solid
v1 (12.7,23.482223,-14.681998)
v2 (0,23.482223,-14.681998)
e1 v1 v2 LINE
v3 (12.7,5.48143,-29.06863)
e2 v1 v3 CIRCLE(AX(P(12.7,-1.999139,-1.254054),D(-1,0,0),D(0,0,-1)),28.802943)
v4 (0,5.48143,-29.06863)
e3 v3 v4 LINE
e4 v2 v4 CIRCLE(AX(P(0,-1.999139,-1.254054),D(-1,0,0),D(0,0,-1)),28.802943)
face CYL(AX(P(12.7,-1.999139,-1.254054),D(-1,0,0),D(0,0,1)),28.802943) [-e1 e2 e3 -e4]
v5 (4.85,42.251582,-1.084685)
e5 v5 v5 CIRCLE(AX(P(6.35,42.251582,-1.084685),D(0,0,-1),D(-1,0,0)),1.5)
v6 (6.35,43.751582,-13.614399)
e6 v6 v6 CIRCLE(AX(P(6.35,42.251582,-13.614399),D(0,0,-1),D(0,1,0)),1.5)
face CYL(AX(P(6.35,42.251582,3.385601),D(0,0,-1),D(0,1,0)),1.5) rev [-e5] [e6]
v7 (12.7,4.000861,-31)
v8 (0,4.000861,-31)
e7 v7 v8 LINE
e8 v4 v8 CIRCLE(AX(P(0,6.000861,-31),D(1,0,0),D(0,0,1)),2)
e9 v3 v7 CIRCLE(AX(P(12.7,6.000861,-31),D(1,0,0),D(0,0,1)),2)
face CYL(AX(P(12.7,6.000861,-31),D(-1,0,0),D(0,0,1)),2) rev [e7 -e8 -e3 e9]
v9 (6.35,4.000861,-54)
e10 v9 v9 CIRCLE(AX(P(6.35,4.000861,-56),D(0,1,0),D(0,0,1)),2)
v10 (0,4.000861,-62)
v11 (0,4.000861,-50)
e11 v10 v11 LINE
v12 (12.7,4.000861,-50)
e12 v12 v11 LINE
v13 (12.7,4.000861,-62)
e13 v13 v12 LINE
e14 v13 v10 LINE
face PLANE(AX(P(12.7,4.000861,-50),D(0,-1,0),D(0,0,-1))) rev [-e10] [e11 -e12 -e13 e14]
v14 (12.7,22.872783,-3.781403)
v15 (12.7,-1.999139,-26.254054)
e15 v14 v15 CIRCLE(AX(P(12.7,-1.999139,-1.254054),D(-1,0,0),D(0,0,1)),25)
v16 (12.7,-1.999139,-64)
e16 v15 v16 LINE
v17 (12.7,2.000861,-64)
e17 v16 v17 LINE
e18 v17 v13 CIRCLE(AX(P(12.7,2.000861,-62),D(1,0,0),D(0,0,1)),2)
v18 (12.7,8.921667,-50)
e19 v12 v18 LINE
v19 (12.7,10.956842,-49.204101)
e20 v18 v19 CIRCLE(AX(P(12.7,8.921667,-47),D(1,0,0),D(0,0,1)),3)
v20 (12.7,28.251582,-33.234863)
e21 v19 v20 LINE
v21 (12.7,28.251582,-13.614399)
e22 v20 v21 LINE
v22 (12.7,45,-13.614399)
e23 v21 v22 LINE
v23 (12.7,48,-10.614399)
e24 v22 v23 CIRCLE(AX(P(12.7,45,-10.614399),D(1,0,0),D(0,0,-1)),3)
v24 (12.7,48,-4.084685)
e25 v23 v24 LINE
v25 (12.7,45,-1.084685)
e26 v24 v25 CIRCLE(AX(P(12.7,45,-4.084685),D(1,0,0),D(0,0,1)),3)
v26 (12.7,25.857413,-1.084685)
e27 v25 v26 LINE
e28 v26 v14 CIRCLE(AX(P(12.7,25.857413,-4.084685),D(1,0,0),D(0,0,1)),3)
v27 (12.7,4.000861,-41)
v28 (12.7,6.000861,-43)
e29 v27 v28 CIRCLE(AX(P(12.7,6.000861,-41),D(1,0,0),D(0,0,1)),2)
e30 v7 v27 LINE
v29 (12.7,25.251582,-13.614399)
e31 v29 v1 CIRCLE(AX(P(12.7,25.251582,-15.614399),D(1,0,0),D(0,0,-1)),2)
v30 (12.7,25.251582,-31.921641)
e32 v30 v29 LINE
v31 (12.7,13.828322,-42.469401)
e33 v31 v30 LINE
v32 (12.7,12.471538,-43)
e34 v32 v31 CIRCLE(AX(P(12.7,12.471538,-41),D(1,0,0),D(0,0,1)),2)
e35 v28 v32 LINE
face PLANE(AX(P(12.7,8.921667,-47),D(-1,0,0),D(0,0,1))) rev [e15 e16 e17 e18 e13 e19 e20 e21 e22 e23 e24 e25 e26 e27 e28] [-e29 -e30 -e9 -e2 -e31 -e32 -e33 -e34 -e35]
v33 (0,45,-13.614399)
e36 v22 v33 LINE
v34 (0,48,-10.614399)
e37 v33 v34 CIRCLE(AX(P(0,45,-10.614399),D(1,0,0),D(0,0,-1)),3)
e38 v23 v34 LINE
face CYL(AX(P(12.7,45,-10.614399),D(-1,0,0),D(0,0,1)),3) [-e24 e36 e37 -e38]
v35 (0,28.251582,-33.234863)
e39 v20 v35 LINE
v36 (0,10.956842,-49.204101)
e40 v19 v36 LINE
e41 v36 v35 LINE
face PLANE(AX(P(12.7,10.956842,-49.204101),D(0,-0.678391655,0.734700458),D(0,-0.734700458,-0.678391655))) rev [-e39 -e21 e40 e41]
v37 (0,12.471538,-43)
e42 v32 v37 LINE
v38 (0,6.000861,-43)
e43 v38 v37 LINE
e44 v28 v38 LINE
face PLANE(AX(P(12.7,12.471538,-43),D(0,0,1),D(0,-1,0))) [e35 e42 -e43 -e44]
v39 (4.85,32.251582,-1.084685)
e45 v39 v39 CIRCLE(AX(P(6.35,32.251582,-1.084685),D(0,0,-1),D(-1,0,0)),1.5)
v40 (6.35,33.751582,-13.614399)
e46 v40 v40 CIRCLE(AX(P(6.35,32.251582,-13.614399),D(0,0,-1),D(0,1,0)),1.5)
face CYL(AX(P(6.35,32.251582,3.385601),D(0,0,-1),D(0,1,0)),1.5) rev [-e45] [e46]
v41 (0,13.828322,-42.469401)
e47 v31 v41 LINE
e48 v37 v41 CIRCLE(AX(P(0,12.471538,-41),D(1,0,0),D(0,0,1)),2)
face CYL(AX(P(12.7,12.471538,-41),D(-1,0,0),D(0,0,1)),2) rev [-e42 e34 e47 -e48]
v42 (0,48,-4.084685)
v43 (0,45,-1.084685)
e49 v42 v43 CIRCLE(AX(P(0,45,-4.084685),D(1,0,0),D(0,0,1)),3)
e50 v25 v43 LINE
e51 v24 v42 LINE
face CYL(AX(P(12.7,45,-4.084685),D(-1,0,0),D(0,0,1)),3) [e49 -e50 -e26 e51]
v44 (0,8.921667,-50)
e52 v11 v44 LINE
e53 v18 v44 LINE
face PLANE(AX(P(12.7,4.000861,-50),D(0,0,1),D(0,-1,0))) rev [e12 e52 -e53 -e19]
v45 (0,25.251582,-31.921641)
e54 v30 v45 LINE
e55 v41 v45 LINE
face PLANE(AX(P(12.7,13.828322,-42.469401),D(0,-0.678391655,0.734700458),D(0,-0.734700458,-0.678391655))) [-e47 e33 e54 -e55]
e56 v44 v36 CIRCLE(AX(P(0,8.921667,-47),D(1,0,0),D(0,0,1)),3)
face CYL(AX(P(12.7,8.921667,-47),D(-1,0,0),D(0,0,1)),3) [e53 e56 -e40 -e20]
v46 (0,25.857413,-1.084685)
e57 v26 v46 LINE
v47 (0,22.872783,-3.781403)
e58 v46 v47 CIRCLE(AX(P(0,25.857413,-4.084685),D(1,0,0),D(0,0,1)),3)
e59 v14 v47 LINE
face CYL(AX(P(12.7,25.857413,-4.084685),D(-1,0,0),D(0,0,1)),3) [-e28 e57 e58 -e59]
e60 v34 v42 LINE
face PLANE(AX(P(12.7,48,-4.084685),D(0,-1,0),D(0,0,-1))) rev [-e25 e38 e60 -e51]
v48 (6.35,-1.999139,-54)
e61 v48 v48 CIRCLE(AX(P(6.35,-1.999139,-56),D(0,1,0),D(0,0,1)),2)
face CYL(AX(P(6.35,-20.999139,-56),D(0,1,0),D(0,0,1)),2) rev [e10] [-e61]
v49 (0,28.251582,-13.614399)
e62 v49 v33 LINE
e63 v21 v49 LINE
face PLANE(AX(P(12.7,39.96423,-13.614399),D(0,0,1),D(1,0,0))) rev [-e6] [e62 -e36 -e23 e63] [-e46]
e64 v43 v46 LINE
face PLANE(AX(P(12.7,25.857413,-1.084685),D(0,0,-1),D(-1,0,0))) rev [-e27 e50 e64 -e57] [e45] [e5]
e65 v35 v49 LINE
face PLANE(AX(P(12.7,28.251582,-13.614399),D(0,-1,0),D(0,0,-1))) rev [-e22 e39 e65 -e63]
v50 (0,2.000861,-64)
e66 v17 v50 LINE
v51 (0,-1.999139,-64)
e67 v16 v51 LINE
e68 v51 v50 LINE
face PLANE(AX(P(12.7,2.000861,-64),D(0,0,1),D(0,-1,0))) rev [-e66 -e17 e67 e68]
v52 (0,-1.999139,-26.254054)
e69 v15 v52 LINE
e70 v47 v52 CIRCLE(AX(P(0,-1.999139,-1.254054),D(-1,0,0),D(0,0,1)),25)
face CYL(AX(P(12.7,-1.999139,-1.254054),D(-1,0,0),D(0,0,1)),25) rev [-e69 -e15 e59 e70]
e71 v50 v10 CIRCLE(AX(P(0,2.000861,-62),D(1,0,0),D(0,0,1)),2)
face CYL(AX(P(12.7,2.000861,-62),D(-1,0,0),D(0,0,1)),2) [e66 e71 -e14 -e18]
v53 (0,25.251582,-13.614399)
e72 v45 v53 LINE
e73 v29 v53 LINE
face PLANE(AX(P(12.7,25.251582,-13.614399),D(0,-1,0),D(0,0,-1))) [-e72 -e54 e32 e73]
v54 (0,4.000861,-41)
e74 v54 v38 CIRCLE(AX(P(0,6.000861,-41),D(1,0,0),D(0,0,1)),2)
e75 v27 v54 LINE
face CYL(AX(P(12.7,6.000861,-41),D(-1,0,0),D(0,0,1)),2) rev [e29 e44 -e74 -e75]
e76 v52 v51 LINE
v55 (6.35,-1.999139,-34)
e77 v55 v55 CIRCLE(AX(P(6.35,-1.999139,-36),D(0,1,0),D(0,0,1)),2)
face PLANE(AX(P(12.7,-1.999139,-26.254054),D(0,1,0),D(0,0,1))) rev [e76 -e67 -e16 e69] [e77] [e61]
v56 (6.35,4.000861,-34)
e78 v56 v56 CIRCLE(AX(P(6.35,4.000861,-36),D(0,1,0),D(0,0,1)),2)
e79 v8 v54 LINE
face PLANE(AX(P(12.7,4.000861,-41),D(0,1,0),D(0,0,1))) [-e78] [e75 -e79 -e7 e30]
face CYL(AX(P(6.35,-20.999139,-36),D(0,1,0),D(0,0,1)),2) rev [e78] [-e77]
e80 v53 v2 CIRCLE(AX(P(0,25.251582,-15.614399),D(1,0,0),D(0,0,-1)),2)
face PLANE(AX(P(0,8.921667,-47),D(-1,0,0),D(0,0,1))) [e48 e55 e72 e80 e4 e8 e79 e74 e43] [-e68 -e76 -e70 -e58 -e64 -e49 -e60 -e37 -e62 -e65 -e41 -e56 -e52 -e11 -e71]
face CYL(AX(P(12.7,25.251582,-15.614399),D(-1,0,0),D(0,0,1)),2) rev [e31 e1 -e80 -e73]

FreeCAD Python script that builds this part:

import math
import FreeCAD as App
import Part
import Sketcher
from FreeCAD import Vector

doc = App.newDocument("Part")
body = doc.addObject("PartDesign::Body", "Body")

# Sketch on YZ plane
sketch1 = body.newObject("Sketcher::SketchObject", "Sketch")
sketch1.AttachmentSupport = (doc.getObject("YZ_Plane"), [""])
sketch1.MapMode = "FlatFace"
sketch1.addGeometry([
    Part.LineSegment(Vector(11, -49.2, 0), Vector(28.3, -33.2, 0)),  # 0
    Part.LineSegment(Vector(28.3, -33.2, 0), Vector(28.3, -13.6, 0)),  # 1
    Part.LineSegment(Vector(28.3, -13.6, 0), Vector(45, -13.6, 0)),  # 2
    Part.ArcOfCircle(Part.Circle(Vector(45, -10.6, 0), Vector(0, 0, 1), 3), math.radians(-90), math.radians(0)),  # 3
    Part.LineSegment(Vector(48, -10.6, 0), Vector(48, -4.1, 0)),  # 4
    Part.ArcOfCircle(Part.Circle(Vector(45, -4.1, 0), Vector(0, 0, 1), 3), math.radians(0), math.radians(90)),  # 5
    Part.LineSegment(Vector(45, -1.1, 0), Vector(25.9, -1.1, 0)),  # 6
    Part.ArcOfCircle(Part.Circle(Vector(25.9, -4.1, 0), Vector(0, 0, 1), 3), math.radians(90), math.radians(174)),  # 7
    Part.ArcOfCircle(Part.Circle(Vector(-2, -1.3, 0), Vector(0, 0, 1), 25), math.radians(-90), math.radians(-6)),  # 8
    Part.LineSegment(Vector(-2, -26.3, 0), Vector(-2, -64, 0)),  # 9
    Part.LineSegment(Vector(-2, -64, 0), Vector(2, -64, 0)),  # 10
    Part.ArcOfCircle(Part.Circle(Vector(2, -62, 0), Vector(0, 0, 1), 2), math.radians(-90), math.radians(0)),  # 11
    Part.LineSegment(Vector(4, -62, 0), Vector(4, -50, 0)),  # 12
    Part.LineSegment(Vector(4, -50, 0), Vector(8.9, -50, 0)),  # 13
    Part.ArcOfCircle(Part.Circle(Vector(8.9, -47, 0), Vector(0, 0, 1), 3), math.radians(-90), math.radians(-47)),  # 14
    Part.LineSegment(Vector(25.3, -31.9, 0), Vector(13.8, -42.5, 0)),  # 15
    Part.ArcOfCircle(Part.Circle(Vector(12.5, -41, 0), Vector(0, 0, 1), 2), math.radians(-90), math.radians(-47)),  # 16
    Part.LineSegment(Vector(12.5, -43, 0), Vector(6, -43, 0)),  # 17
    Part.ArcOfCircle(Part.Circle(Vector(6, -41, 0), Vector(0, 0, 1), 2), math.radians(180), math.radians(270)),  # 18
    Part.LineSegment(Vector(4, -41, 0), Vector(4, -31, 0)),  # 19
    Part.ArcOfCircle(Part.Circle(Vector(6, -31, 0), Vector(0, 0, 1), 2), math.radians(105), math.radians(180)),  # 20
    Part.ArcOfCircle(Part.Circle(Vector(-2, -1.3, 0), Vector(0, 0, 1), 28.8), math.radians(-75), math.radians(-28)),  # 21
    Part.ArcOfCircle(Part.Circle(Vector(25.3, -15.6, 0), Vector(0, 0, 1), 2), math.radians(90), math.radians(152)),  # 22
    Part.LineSegment(Vector(25.3, -13.6, 0), Vector(25.3, -31.9, 0)),  # 23
], False)
sketch1.addConstraint([
    Sketcher.Constraint("Coincident", 0, 2, 1, 1),
    Sketcher.Constraint("Coincident", 1, 2, 2, 1),
    Sketcher.Constraint("Tangent", 2, 2, 3, 1),
    Sketcher.Constraint("Tangent", 3, 2, 4, 1),
    Sketcher.Constraint("Tangent", 4, 2, 5, 1),
    Sketcher.Constraint("Tangent", 5, 2, 6, 1),
    Sketcher.Constraint("Tangent", 6, 2, 7, 1),
    Sketcher.Constraint("Tangent", 7, 2, 8, 2),
    Sketcher.Constraint("Coincident", 8, 1, 9, 1),
    Sketcher.Constraint("Coincident", 9, 2, 10, 1),
    Sketcher.Constraint("Tangent", 10, 2, 11, 1),
    Sketcher.Constraint("Tangent", 11, 2, 12, 1),
    Sketcher.Constraint("Coincident", 12, 2, 13, 1),
    Sketcher.Constraint("Tangent", 13, 2, 14, 1),
    Sketcher.Constraint("Tangent", 14, 2, 0, 1),
    Sketcher.Constraint("Tangent", 15, 2, 16, 2),
    Sketcher.Constraint("Tangent", 16, 1, 17, 1),
    Sketcher.Constraint("Tangent", 17, 2, 18, 2),
    Sketcher.Constraint("Tangent", 18, 1, 19, 1),
    Sketcher.Constraint("Tangent", 19, 2, 20, 2),
    Sketcher.Constraint("Tangent", 20, 1, 21, 1),
    Sketcher.Constraint("Tangent", 21, 2, 22, 2),
    Sketcher.Constraint("Coincident", 22, 1, 23, 1),
    Sketcher.Constraint("Coincident", 23, 2, 15, 1),
    Sketcher.Constraint("Vertical", 1),
    Sketcher.Constraint("Horizontal", 2),
    Sketcher.Constraint("Vertical", 4),
    Sketcher.Constraint("Horizontal", 6),
    Sketcher.Constraint("Vertical", 9),
    Sketcher.Constraint("Horizontal", 10),
    Sketcher.Constraint("Vertical", 12),
    Sketcher.Constraint("Horizontal", 13),
    Sketcher.Constraint("Horizontal", 17),
    Sketcher.Constraint("Vertical", 19),
    Sketcher.Constraint("Vertical", 23),
    Sketcher.Constraint("Coincident", 21, 3, 8, 3),
    Sketcher.Constraint("Equal", 3, 5),
    Sketcher.Constraint("Equal", 5, 7),
    Sketcher.Constraint("Equal", 7, 14),
    Sketcher.Constraint("Equal", 11, 16),
    Sketcher.Constraint("Equal", 16, 18),
    Sketcher.Constraint("Equal", 18, 20),
    Sketcher.Constraint("Equal", 20, 22),
    Sketcher.Constraint("Parallel", 0, 15),
    Sketcher.Constraint("Horizontal", 2, 2, 22, 1),
    Sketcher.Constraint("Vertical", 21, 3, 8, 1),
    Sketcher.Constraint("Vertical", 12, 2, 18, 1),
    Sketcher.Constraint("Radius", 3, 3.0),
    Sketcher.Constraint("Radius", 8, 25.0),
    Sketcher.Constraint("Radius", 11, 2.0),
    Sketcher.Constraint("DistanceX", 10, 1, 10, 2, 4.0),
    Sketcher.Constraint("DistanceY", 12, 1, 12, 2, 12.0),
    Sketcher.Constraint("DistanceY", 19, 1, 19, 2, 10.0),
    Sketcher.Constraint("DistanceX", -1, 1, 3, 3, 45.0),
    Sketcher.Constraint("DistanceY", 11, 3, -1, 1, 62.0),
    Sketcher.Constraint("DistanceY", 16, 3, -1, 1, 41.0),
    Sketcher.Constraint("DistanceX", 22, 3, 0, 2, 3.0),
    Sketcher.Constraint("DistanceX", 22, 1, 1, 2, 3.0),
    Sketcher.Constraint("DistanceY", 21, 2, -1, 1, 14.681998),
    Sketcher.Constraint("Radius", 21, 28.802943),
    Sketcher.Constraint("DistanceX", 2, 1, 2, 2, 16.748418),
    Sketcher.Constraint("DistanceY", 23, 2, 23, 1, 18.307242),
    Sketcher.Constraint("DistanceY", 14, 2, -1, 1, 49.204101),
    Sketcher.Constraint("DistanceX", 7, 2, 1, 2, 5.378799),
    Sketcher.Constraint("Distance", 0, 23.539851),
])
pad1 = body.newObject("PartDesign::Pad", "Pad")
pad1.Profile = sketch1
pad1.Length = 12.7

# Sketch on XZ plane
sketch2 = body.newObject("Sketcher::SketchObject", "Sketch001")
sketch2.AttachmentSupport = (doc.getObject("XZ_Plane"), [""])
sketch2.MapMode = "FlatFace"
sketch2.AttachmentOffset = App.Placement(Vector(0, 0, -4.000861), App.Rotation())
sketch2.addGeometry([
    Part.Circle(Vector(6.3, -56, 0), Vector(0, 0, 1), 2),
    Part.Circle(Vector(6.3, -36, 0), Vector(0, 0, 1), 2),
], False)
sketch2.addConstraint([
    Sketcher.Constraint("Equal", 0, 1),
    Sketcher.Constraint("Vertical", 0, 3, 1, 3),
    Sketcher.Constraint("Diameter", 0, 4.0),
    Sketcher.Constraint("DistanceY", 0, 3, -1, 1, 56.0),
    Sketcher.Constraint("DistanceY", 1, 3, -1, 1, 36.0),
    Sketcher.Constraint("DistanceX", -1, 1, 0, 3, 6.35),
])
pocket1 = body.newObject("PartDesign::Pocket", "Pocket")
pocket1.Profile = sketch2
pocket1.Length = 25
pocket1.Reversed = True

# Sketch on XY plane
sketch3 = body.newObject("Sketcher::SketchObject", "Sketch002")
sketch3.AttachmentSupport = (doc.getObject("XY_Plane"), [""])
sketch3.MapMode = "FlatFace"
sketch3.AttachmentOffset = App.Placement(Vector(0, 0, -13.614399), App.Rotation())
sketch3.addGeometry([
    Part.Circle(Vector(6.3, 32.3, 0), Vector(0, 0, 1), 1.5),
    Part.Circle(Vector(6.3, 42.3, 0), Vector(0, 0, 1), 1.5),
], False)
sketch3.addConstraint([
    Sketcher.Constraint("Equal", 0, 1),
    Sketcher.Constraint("Vertical", 0, 3, 1, 3),
    Sketcher.Constraint("Diameter", 0, 3.0),
    Sketcher.Constraint("DistanceY", 0, 3, 1, 3, 10.0),
    Sketcher.Constraint("DistanceX", -1, 1, 0, 3, 6.35),
    Sketcher.Constraint("DistanceY", -1, 1, 0, 3, 32.251582),
])
pocket2 = body.newObject("PartDesign::Pocket", "Pocket001")
pocket2.Profile = sketch3
pocket2.Length = 17
pocket2.Reversed = True

doc.recompute()
